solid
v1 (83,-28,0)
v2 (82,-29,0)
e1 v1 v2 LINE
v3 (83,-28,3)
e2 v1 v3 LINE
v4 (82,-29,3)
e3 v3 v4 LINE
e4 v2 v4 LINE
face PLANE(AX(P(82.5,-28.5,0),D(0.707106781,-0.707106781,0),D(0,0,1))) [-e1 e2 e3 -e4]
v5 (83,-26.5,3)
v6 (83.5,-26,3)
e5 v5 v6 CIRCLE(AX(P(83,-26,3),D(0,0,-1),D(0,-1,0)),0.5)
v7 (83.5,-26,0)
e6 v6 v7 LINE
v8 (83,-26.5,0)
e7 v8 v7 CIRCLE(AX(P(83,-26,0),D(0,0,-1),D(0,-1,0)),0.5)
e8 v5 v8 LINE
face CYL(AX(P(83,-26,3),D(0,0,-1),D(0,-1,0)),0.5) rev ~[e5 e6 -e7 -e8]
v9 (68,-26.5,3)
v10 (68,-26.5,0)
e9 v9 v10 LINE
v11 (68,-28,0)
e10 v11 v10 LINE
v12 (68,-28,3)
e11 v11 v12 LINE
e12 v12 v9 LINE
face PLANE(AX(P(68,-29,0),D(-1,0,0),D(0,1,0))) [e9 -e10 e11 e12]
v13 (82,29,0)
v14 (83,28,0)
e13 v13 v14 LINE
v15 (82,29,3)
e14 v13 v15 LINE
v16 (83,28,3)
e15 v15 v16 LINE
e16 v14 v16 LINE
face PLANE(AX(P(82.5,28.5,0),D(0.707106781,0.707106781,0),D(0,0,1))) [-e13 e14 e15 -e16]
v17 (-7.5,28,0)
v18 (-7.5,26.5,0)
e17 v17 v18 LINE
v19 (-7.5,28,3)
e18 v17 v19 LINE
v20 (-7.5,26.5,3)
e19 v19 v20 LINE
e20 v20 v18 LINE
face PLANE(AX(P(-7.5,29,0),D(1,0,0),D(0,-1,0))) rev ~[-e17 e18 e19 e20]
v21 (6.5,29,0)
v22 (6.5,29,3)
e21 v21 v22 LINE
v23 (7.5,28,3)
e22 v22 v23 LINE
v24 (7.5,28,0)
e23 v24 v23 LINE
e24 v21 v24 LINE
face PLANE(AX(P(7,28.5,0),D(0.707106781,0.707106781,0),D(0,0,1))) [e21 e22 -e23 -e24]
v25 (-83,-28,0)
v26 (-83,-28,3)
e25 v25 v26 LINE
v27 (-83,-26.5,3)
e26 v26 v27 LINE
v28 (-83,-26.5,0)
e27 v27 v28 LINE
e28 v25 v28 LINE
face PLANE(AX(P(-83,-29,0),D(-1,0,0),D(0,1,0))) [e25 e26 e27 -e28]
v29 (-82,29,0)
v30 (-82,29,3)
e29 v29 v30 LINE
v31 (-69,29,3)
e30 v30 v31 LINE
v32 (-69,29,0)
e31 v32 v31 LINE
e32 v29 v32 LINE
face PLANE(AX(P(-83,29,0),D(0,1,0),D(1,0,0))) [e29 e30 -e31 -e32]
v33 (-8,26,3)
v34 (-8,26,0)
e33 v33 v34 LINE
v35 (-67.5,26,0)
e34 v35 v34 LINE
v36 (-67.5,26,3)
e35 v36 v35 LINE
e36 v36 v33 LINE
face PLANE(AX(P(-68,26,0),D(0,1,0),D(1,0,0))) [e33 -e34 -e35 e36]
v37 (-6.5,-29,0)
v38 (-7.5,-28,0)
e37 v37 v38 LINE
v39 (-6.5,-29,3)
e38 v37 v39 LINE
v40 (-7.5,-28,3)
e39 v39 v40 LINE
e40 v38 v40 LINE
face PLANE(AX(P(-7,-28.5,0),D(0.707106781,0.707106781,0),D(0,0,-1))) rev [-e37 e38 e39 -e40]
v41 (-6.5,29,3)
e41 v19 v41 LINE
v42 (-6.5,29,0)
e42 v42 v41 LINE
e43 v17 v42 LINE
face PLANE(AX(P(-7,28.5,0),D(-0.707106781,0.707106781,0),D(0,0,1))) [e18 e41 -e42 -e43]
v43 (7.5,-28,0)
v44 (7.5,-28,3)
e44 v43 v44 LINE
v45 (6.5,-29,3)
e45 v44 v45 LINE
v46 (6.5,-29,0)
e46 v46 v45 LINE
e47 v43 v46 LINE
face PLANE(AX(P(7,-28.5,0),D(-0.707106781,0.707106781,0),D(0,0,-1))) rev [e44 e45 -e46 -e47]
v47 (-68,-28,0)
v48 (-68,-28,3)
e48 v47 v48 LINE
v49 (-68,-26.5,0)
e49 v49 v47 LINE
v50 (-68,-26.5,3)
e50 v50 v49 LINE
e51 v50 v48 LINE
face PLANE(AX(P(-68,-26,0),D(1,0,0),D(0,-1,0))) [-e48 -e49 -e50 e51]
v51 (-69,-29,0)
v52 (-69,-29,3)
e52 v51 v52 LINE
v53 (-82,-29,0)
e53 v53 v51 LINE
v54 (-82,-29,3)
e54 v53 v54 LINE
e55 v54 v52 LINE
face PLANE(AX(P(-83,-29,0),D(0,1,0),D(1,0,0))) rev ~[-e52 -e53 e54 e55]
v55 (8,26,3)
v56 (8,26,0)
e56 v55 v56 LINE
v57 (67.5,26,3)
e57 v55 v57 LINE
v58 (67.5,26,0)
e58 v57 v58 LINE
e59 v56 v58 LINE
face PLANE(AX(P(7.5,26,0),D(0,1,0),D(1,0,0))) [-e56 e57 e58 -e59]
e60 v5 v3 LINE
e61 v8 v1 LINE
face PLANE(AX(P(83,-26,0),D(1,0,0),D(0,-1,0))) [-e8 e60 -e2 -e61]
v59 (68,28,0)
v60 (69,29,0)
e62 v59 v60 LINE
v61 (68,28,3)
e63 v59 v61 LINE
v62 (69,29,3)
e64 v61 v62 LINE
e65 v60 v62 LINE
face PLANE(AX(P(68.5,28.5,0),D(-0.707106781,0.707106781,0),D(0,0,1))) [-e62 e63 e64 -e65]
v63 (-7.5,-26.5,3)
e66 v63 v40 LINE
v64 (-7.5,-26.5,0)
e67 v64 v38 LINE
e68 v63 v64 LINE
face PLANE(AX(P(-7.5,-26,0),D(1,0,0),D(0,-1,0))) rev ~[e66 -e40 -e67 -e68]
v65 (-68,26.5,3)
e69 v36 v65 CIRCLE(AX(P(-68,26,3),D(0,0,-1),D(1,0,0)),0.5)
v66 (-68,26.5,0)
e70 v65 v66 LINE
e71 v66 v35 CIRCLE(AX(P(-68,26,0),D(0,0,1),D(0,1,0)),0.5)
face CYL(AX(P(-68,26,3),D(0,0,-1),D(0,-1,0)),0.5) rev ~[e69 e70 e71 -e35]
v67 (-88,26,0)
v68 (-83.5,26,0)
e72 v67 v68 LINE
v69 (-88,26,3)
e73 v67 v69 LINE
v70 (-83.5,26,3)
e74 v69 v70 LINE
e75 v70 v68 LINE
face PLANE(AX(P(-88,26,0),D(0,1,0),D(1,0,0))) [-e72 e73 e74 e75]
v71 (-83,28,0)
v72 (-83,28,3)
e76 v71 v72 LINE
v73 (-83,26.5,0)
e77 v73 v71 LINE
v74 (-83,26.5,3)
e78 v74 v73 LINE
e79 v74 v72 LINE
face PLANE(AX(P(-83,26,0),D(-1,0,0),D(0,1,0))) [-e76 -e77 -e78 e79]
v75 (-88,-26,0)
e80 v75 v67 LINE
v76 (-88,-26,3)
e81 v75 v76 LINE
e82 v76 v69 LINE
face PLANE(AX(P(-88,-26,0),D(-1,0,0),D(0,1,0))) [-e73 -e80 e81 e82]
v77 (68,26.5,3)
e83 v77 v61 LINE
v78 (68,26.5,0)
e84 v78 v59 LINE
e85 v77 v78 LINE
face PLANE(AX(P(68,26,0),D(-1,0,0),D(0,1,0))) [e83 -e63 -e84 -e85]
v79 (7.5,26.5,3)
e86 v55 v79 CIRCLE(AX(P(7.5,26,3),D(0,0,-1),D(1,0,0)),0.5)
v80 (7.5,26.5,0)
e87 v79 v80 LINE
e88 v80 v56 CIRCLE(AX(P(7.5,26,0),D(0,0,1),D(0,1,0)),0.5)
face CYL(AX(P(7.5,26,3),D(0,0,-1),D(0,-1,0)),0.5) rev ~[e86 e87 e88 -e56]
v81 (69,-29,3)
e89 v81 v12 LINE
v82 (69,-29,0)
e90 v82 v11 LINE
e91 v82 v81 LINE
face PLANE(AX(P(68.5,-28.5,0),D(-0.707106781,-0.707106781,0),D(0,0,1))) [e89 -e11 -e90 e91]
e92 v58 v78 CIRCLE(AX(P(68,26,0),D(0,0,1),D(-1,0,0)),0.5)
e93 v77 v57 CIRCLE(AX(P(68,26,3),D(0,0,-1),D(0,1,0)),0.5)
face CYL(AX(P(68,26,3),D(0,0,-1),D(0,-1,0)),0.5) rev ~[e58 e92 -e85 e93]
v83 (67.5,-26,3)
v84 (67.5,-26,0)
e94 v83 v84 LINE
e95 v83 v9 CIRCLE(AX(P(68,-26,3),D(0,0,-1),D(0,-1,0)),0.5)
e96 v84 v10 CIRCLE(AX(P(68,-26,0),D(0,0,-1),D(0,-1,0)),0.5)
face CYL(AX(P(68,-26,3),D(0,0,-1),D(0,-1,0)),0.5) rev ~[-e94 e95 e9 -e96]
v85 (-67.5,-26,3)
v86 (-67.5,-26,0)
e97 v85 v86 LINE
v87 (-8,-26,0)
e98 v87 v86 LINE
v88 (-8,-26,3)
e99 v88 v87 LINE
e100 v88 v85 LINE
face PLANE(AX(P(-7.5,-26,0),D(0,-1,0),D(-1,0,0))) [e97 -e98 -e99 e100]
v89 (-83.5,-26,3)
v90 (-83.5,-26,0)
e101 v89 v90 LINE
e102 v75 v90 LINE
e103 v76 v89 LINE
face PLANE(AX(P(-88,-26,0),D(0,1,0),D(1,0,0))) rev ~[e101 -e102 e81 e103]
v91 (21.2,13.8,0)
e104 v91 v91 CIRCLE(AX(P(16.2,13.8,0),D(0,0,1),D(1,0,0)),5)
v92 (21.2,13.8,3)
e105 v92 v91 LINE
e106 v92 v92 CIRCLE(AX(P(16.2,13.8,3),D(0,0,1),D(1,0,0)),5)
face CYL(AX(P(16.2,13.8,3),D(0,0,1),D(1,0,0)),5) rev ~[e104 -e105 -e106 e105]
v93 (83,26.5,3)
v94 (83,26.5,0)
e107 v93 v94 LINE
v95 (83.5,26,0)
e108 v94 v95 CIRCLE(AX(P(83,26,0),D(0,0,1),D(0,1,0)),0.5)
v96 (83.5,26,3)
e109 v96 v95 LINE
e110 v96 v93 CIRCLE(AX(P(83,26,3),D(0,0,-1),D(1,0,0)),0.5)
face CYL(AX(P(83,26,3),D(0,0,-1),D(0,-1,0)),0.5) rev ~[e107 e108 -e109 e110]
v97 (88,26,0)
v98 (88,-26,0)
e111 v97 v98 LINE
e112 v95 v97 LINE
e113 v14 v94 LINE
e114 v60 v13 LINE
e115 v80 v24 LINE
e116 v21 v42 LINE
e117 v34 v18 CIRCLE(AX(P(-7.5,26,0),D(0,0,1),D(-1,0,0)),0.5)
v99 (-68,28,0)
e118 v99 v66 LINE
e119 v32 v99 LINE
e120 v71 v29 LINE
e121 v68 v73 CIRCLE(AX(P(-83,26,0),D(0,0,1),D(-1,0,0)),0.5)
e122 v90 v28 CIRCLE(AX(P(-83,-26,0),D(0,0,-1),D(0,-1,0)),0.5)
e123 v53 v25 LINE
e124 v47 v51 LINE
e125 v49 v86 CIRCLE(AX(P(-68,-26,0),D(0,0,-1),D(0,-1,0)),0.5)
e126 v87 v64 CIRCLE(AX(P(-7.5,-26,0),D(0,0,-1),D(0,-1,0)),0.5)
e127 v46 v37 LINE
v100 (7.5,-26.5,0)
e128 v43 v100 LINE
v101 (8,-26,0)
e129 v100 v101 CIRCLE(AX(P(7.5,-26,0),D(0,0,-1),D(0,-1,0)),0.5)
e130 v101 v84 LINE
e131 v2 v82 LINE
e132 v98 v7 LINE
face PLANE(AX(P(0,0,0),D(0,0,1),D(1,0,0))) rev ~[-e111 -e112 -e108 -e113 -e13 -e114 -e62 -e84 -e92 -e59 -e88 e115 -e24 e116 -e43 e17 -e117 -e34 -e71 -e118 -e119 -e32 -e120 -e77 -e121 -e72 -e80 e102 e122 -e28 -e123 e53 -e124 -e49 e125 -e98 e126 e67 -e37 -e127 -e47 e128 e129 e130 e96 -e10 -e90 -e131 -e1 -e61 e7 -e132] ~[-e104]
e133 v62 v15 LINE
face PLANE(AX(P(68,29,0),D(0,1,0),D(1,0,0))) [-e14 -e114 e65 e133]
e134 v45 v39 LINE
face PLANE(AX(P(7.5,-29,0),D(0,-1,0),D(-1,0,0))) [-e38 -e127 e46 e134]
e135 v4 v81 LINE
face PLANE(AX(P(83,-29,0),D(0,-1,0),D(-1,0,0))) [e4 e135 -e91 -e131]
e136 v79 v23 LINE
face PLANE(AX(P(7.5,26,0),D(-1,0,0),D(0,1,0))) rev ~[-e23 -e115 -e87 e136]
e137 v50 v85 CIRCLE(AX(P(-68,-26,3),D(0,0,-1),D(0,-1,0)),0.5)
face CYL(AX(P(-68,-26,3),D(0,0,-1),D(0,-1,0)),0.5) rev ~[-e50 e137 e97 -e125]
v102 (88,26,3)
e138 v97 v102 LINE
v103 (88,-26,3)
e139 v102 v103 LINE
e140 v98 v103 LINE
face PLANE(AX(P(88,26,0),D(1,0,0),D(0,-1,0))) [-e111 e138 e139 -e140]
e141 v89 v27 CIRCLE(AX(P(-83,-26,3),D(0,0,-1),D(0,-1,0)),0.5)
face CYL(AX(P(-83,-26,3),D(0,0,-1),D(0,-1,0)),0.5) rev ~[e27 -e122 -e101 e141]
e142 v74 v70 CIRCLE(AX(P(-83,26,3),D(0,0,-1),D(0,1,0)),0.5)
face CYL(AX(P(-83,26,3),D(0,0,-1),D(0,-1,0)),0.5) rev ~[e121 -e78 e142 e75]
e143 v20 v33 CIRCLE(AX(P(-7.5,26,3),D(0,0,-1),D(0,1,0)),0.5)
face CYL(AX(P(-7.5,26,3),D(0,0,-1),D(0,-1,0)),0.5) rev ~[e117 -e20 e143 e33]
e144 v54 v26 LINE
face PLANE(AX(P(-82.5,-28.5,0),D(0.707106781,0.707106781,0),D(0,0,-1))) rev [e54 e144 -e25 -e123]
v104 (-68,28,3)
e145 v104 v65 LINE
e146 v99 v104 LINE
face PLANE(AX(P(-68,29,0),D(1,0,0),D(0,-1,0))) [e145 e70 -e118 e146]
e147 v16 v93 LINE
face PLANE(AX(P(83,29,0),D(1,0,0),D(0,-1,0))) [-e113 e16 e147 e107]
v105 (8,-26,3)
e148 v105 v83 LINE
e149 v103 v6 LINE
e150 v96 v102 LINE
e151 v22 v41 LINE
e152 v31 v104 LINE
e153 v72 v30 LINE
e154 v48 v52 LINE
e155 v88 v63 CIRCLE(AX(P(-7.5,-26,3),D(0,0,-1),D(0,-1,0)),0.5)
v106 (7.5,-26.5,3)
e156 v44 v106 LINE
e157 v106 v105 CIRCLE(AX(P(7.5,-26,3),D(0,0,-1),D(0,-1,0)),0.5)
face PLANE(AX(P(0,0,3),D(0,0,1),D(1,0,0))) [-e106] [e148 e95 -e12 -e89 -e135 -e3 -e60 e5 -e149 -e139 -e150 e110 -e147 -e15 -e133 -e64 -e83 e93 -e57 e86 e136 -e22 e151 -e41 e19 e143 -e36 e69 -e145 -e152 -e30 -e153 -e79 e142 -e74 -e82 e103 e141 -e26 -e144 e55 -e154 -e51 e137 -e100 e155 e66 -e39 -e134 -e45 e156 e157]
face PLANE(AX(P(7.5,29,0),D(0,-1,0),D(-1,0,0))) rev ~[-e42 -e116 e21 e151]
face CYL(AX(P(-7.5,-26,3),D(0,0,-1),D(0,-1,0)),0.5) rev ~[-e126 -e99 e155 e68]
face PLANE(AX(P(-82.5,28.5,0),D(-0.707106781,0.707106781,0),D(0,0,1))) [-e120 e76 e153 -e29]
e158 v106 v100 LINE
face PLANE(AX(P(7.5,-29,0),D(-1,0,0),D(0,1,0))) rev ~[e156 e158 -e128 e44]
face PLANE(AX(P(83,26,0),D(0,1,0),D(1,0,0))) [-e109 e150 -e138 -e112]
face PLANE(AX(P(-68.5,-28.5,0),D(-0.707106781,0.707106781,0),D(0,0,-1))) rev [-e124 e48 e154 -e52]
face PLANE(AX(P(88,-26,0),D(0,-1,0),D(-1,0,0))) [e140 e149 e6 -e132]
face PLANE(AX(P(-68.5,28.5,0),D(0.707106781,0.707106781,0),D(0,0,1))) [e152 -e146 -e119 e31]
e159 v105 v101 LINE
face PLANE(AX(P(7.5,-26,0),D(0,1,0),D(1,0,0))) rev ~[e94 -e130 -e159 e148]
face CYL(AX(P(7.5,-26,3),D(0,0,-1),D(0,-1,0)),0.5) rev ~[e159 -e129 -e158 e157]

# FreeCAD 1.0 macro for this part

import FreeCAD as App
import Part
import Sketcher
from FreeCAD import Vector


def edges_at(feature, points):
    """Names of the edges that pass closest to the given points."""
    edges = feature.Shape.Edges
    near = lambda p: min(range(len(edges)), key=lambda i: edges[i].distToShape(Part.Vertex(*p))[0])
    return sorted({f"Edge{near(p) + 1}" for p in points})

doc = App.newDocument("Part")
body = doc.addObject("PartDesign::Body", "Body")

# Sketch on XY plane
sketch1 = doc.addObject("Sketcher::SketchObject", "Sketch")
body.addObject(sketch1)
sketch1.AttachmentSupport = (doc.XY_Plane, [""])
sketch1.MapMode = "FlatFace"
sketch1.addGeometry([
    Part.LineSegment(Vector(-88, 26, 0), Vector(-88, -26, 0)),  # 0
    Part.LineSegment(Vector(-88, -26, 0), Vector(-83, -26, 0)),  # 1
    Part.LineSegment(Vector(-83, -26, 0), Vector(-83, -29, 0)),  # 2
    Part.LineSegment(Vector(-83, -29, 0), Vector(-68, -29, 0)),  # 3
    Part.LineSegment(Vector(-68, -29, 0), Vector(-68, -26, 0)),  # 4
    Part.LineSegment(Vector(-68, -26, 0), Vector(-7.5, -26, 0)),  # 5
    Part.LineSegment(Vector(-7.5, -26, 0), Vector(-7.5, -29, 0)),  # 6
    Part.LineSegment(Vector(-7.5, -29, 0), Vector(7.5, -29, 0)),  # 7
    Part.LineSegment(Vector(7.5, -29, 0), Vector(7.5, -26, 0)),  # 8
    Part.LineSegment(Vector(7.5, -26, 0), Vector(68, -26, 0)),  # 9
    Part.LineSegment(Vector(68, -26, 0), Vector(68, -29, 0)),  # 10
    Part.LineSegment(Vector(68, -29, 0), Vector(83, -29, 0)),  # 11
    Part.LineSegment(Vector(83, -29, 0), Vector(83, -26, 0)),  # 12
    Part.LineSegment(Vector(83, -26, 0), Vector(88, -26, 0)),  # 13
    Part.LineSegment(Vector(88, -26, 0), Vector(88, 26, 0)),  # 14
    Part.LineSegment(Vector(88, 26, 0), Vector(83, 26, 0)),  # 15
    Part.LineSegment(Vector(83, 26, 0), Vector(83, 29, 0)),  # 16
    Part.LineSegment(Vector(83, 29, 0), Vector(68, 29, 0)),  # 17
    Part.LineSegment(Vector(68, 29, 0), Vector(68, 26, 0)),  # 18
    Part.LineSegment(Vector(68, 26, 0), Vector(7.5, 26, 0)),  # 19
    Part.LineSegment(Vector(7.5, 26, 0), Vector(7.5, 29, 0)),  # 20
    Part.LineSegment(Vector(7.5, 29, 0), Vector(-7.5, 29, 0)),  # 21
    Part.LineSegment(Vector(-7.5, 29, 0), Vector(-7.5, 26, 0)),  # 22
    Part.LineSegment(Vector(-7.5, 26, 0), Vector(-68, 26, 0)),  # 23
    Part.LineSegment(Vector(-68, 26, 0), Vector(-68, 29, 0)),  # 24
    Part.LineSegment(Vector(-68, 29, 0), Vector(-83, 29, 0)),  # 25
    Part.LineSegment(Vector(-83, 29, 0), Vector(-83, 26, 0)),  # 26
    Part.LineSegment(Vector(-83, 26, 0), Vector(-88, 26, 0)),  # 27
], False)
sketch1.addConstraint([
    Sketcher.Constraint("Coincident", 0, 2, 1, 1),
    Sketcher.Constraint("Coincident", 1, 2, 2, 1),
    Sketcher.Constraint("Coincident", 2, 2, 3, 1),
    Sketcher.Constraint("Coincident", 3, 2, 4, 1),
    Sketcher.Constraint("Coincident", 4, 2, 5, 1),
    Sketcher.Constraint("Coincident", 5, 2, 6, 1),
    Sketcher.Constraint("Coincident", 6, 2, 7, 1),
    Sketcher.Constraint("Coincident", 7, 2, 8, 1),
    Sketcher.Constraint("Coincident", 8, 2, 9, 1),
    Sketcher.Constraint("Coincident", 9, 2, 10, 1),
    Sketcher.Constraint("Coincident", 10, 2, 11, 1),
    Sketcher.Constraint("Coincident", 11, 2, 12, 1),
    Sketcher.Constraint("Coincident", 12, 2, 13, 1),
    Sketcher.Constraint("Coincident", 13, 2, 14, 1),
    Sketcher.Constraint("Coincident", 14, 2, 15, 1),
    Sketcher.Constraint("Coincident", 15, 2, 16, 1),
    Sketcher.Constraint("Coincident", 16, 2, 17, 1),
    Sketcher.Constraint("Coincident", 17, 2, 18, 1),
    Sketcher.Constraint("Coincident", 18, 2, 19, 1),
    Sketcher.Constraint("Coincident", 19, 2, 20, 1),
    Sketcher.Constraint("Coincident", 20, 2, 21, 1),
    Sketcher.Constraint("Coincident", 21, 2, 22, 1),
    Sketcher.Constraint("Coincident", 22, 2, 23, 1),
    Sketcher.Constraint("Coincident", 23, 2, 24, 1),
    Sketcher.Constraint("Coincident", 24, 2, 25, 1),
    Sketcher.Constraint("Coincident", 25, 2, 26, 1),
    Sketcher.Constraint("Coincident", 26, 2, 27, 1),
    Sketcher.Constraint("Coincident", 27, 2, 0, 1),
    Sketcher.Constraint("Vertical", 0),
    Sketcher.Constraint("Horizontal", 1),
    Sketcher.Constraint("Vertical", 2),
    Sketcher.Constraint("Horizontal", 3),
    Sketcher.Constraint("Vertical", 4),
    Sketcher.Constraint("Horizontal", 5),
    Sketcher.Constraint("Vertical", 6),
    Sketcher.Constraint("Horizontal", 7),
    Sketcher.Constraint("Vertical", 8),
    Sketcher.Constraint("Horizontal", 9),
    Sketcher.Constraint("Vertical", 10),
    Sketcher.Constraint("Horizontal", 11),
    Sketcher.Constraint("Vertical", 12),
    Sketcher.Constraint("Horizontal", 13),
    Sketcher.Constraint("Vertical", 14),
    Sketcher.Constraint("Horizontal", 15),
    Sketcher.Constraint("Vertical", 16),
    Sketcher.Constraint("Horizontal", 17),
    Sketcher.Constraint("Vertical", 18),
    Sketcher.Constraint("Horizontal", 19),
    Sketcher.Constraint("Vertical", 20),
    Sketcher.Constraint("Horizontal", 21),
    Sketcher.Constraint("Vertical", 22),
    Sketcher.Constraint("Horizontal", 23),
    Sketcher.Constraint("Vertical", 24),
    Sketcher.Constraint("Horizontal", 25),
    Sketcher.Constraint("Vertical", 26),
    Sketcher.Constraint("Horizontal", 27),
    Sketcher.Constraint("Symmetric", 0, 2, 14, 2, -1, 1),
    Sketcher.Constraint("Symmetric", 2, 2, 16, 2, -1, 1),
    Sketcher.Constraint("Symmetric", 4, 2, 18, 2, -1, 1),
    Sketcher.Constraint("Symmetric", 6, 2, 20, 2, -1, 1),
    Sketcher.Constraint("Symmetric", 8, 2, 22, 2, -1, 1),
    Sketcher.Constraint("Symmetric", 10, 2, 24, 2, -1, 1),
    Sketcher.Constraint("Symmetric", 12, 2, 26, 2, -1, 1),
    Sketcher.Constraint("Symmetric", 5, 2, 8, 2, -2),
    Sketcher.Constraint("Symmetric", 3, 2, 10, 2, -2),
    Sketcher.Constraint("Symmetric", 1, 2, 12, 2, -2),
    Sketcher.Constraint("Horizontal", 1, 2, 4, 2),
    Sketcher.Constraint("Horizontal", 3, 2, 6, 2),
    Sketcher.Constraint("Equal", 3, 7),
    Sketcher.Constraint("DistanceX", 1, 1, 1, 2, 5.0),
    Sketcher.Constraint("DistanceX", 3, 1, 3, 2, 15.0),
    Sketcher.Constraint("DistanceY", 0, 2, 0, 1, 52.0),
    Sketcher.Constraint("DistanceY", 2, 2, 2, 1, 3.0),
    Sketcher.Constraint("DistanceX", 5, 1, 5, 2, 60.5),
])
pad1 = doc.addObject("PartDesign::Pad", "Pad")
body.addObject(pad1)
pad1.Profile = sketch1
pad1.Length = 3

# Sketch on XY plane
sketch2 = doc.addObject("Sketcher::SketchObject", "Sketch001")
body.addObject(sketch2)
sketch2.AttachmentSupport = (doc.XY_Plane, [""])
sketch2.MapMode = "FlatFace"
sketch2.AttachmentOffset = App.Placement(Vector(0, 0, 3), App.Rotation())
sketch2.addGeometry([
    Part.Circle(Vector(-83, 26, 0), Vector(0, 0, 1), 0.5),  # 0
    Part.Circle(Vector(-68, 26, 0), Vector(0, 0, 1), 0.5),  # 1
    Part.Circle(Vector(-83, -26, 0), Vector(0, 0, 1), 0.5),  # 2
    Part.Circle(Vector(-68, -26, 0), Vector(0, 0, 1), 0.5),  # 3
    Part.Circle(Vector(-7.5, -26, 0), Vector(0, 0, 1), 0.5),  # 4
    Part.Circle(Vector(7.5, -26, 0), Vector(0, 0, 1), 0.5),  # 5
    Part.Circle(Vector(68, -26, 0), Vector(0, 0, 1), 0.5),  # 6
    Part.Circle(Vector(83, -26, 0), Vector(0, 0, 1), 0.5),  # 7
    Part.Circle(Vector(83, 26, 0), Vector(0, 0, 1), 0.5),  # 8
    Part.Circle(Vector(68, 26, 0), Vector(0, 0, 1), 0.5),  # 9
    Part.Circle(Vector(-7.5, 26, 0), Vector(0, 0, 1), 0.5),  # 10
    Part.Circle(Vector(7.5, 26, 0), Vector(0, 0, 1), 0.5),  # 11
], False)
sketch2.addConstraint([
    Sketcher.Constraint("Equal", 0, 1),
    Sketcher.Constraint("Equal", 1, 2),
    Sketcher.Constraint("Equal", 2, 3),
    Sketcher.Constraint("Equal", 3, 4),
    Sketcher.Constraint("Equal", 4, 5),
    Sketcher.Constraint("Equal", 5, 6),
    Sketcher.Constraint("Equal", 6, 7),
    Sketcher.Constraint("Equal", 7, 8),
    Sketcher.Constraint("Equal", 8, 9),
    Sketcher.Constraint("Equal", 9, 10),
    Sketcher.Constraint("Equal", 10, 11),
    Sketcher.Constraint("Symmetric", 1, 3, 6, 3, -1, 1),
    Sketcher.Constraint("Symmetric", 0, 3, 7, 3, -1, 1),
    Sketcher.Constraint("Symmetric", 2, 3, 8, 3, -1, 1),
    Sketcher.Constraint("Symmetric", 3, 3, 9, 3, -1, 1),
    Sketcher.Constraint("Symmetric", 5, 3, 10, 3, -1, 1),
    Sketcher.Constraint("Symmetric", 4, 3, 11, 3, -1, 1),
    Sketcher.Constraint("Symmetric", 4, 3, 5, 3, -2),
    Sketcher.Constraint("Symmetric", 3, 3, 6, 3, -2),
    Sketcher.Constraint("Symmetric", 2, 3, 7, 3, -2),
    Sketcher.Constraint("Horizontal", 0, 3, 1, 3),
    Sketcher.Constraint("Horizontal", 3, 3, 4, 3),
    Sketcher.Constraint("Diameter", 0, 1.0),
    Sketcher.Constraint("DistanceX", 0, 3, -1, 1, 83.0),
    Sketcher.Constraint("DistanceY", -1, 1, 0, 3, 26.0),
    Sketcher.Constraint("DistanceX", 1, 3, -1, 1, 68.0),
    Sketcher.Constraint("DistanceX", 4, 3, 5, 3, 15.0),
])
doc.recompute()
hole = doc.addObject("PartDesign::Hole", "Hole")
body.addObject(hole)
hole.Profile = sketch2
hole.ThreadType = "None"
hole.Diameter = 1
hole.DepthType = "ThroughAll"
doc.recompute()

chamfer = doc.addObject("PartDesign::Chamfer", "Chamfer")
body.addObject(chamfer)
chamfer.Base = (hole, edges_at(hole, [
    (-83, 29, 1.5),
    (-68, 29, 1.5),
    (-7.5, 29, 1.5),
    (7.5, 29, 1.5),
    (68, 29, 1.5),
    (83, 29, 1.5),
    (-83, -29, 1.5),
    (-68, -29, 1.5),
    (-7.5, -29, 1.5),
    (7.5, -29, 1.5),
    (68, -29, 1.5),
    (83, -29, 1.5),
]))
chamfer.Size = 1

# Sketch on XY plane
sketch3 = doc.addObject("Sketcher::SketchObject", "Sketch002")
body.addObject(sketch3)
sketch3.AttachmentSupport = (doc.XY_Plane, [""])
sketch3.MapMode = "FlatFace"
sketch3.AttachmentOffset = App.Placement(Vector(0, 0, 3), App.Rotation())
sketch3.addGeometry(Part.Circle(Vector(16.2, 13.8, 0), Vector(0, 0, 1), 5), False)
sketch3.addConstraint([
    Sketcher.Constraint("Diameter", 0, 10.0),
    Sketcher.Constraint("DistanceX", -1, 1, 0, 3, 16.2),
    Sketcher.Constraint("DistanceY", -1, 1, 0, 3, 13.8),
])
pocket1 = doc.addObject("PartDesign::Pocket", "Pocket")
body.addObject(pocket1)
pocket1.Profile = sketch3
pocket1.Type = "ThroughAll"

doc.recompute()
